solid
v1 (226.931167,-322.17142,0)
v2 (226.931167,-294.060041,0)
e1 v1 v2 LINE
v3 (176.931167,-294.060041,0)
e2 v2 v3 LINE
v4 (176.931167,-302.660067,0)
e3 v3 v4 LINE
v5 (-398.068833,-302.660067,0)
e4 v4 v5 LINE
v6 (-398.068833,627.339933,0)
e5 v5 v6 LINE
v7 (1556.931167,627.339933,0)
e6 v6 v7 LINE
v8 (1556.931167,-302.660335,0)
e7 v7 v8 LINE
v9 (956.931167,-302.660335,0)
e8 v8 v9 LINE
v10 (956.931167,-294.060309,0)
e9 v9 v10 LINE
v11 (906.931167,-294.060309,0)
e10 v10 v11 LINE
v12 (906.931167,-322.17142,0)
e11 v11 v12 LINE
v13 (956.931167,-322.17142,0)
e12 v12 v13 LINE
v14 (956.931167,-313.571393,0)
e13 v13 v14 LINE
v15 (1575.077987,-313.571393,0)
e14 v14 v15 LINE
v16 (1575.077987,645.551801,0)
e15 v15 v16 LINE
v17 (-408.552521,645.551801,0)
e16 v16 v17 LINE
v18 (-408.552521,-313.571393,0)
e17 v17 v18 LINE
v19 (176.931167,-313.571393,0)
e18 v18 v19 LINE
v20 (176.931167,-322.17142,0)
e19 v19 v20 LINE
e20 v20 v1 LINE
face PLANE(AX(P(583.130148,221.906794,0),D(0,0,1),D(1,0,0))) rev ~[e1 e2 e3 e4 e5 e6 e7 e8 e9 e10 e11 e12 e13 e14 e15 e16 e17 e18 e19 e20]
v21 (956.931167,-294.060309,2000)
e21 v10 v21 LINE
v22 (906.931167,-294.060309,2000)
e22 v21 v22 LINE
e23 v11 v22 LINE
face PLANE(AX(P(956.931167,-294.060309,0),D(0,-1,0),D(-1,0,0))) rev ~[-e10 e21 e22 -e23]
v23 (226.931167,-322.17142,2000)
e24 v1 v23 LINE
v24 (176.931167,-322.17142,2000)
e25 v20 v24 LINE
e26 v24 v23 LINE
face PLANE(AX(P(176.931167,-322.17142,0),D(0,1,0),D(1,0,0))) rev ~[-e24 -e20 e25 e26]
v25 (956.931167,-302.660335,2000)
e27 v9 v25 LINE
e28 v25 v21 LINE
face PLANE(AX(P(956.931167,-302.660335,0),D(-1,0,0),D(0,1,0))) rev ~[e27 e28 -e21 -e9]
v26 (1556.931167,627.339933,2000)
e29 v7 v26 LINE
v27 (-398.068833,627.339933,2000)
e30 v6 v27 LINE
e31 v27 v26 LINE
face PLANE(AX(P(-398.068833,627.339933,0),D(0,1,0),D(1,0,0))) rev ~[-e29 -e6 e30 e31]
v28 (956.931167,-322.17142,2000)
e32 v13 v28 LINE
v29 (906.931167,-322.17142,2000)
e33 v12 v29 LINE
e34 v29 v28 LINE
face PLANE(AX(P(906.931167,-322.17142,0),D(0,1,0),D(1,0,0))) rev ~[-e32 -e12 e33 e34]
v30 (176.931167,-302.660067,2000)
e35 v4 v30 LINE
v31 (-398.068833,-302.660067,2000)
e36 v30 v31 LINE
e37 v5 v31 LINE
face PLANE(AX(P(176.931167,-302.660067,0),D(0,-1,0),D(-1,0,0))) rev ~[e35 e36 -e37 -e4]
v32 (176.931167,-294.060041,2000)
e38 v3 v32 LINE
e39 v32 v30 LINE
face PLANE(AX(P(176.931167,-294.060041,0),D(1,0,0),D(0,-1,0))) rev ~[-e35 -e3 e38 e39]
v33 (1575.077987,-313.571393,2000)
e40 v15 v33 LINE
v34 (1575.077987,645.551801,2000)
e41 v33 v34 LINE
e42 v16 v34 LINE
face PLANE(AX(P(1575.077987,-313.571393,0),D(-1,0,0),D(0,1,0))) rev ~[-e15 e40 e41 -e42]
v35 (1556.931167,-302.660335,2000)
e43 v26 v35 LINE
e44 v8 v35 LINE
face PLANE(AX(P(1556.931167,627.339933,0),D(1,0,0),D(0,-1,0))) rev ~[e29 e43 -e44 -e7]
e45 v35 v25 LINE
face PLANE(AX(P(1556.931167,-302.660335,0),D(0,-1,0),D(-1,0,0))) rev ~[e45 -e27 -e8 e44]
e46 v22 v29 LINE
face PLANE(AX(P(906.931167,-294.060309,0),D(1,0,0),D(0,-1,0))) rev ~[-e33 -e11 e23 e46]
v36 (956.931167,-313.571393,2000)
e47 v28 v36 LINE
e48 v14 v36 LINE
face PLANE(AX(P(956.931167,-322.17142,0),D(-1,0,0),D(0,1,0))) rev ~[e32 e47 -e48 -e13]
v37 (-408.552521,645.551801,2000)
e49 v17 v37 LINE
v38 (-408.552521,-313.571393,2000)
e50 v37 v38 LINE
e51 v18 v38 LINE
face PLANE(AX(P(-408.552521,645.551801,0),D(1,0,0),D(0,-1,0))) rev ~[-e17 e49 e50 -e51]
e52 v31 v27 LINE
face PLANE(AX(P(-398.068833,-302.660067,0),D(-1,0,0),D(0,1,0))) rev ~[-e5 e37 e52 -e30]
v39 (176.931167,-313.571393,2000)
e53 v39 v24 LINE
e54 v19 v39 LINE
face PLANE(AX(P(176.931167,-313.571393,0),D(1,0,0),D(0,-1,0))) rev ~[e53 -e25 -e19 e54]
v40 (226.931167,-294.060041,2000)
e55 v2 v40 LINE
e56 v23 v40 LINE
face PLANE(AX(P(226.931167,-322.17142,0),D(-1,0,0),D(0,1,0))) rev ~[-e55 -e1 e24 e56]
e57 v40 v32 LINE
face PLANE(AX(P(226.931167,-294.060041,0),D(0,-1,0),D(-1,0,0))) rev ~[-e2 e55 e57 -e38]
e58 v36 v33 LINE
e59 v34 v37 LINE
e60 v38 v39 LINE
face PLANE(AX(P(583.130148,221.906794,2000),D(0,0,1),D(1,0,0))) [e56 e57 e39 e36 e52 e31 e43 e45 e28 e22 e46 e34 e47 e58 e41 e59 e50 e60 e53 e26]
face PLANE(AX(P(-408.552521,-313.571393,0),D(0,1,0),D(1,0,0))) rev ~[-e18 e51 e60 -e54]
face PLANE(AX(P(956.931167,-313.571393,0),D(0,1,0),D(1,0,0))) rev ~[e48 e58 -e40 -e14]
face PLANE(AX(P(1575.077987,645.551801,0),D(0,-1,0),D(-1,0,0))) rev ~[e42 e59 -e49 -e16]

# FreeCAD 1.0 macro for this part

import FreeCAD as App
import Part
import Sketcher

V = App.Vector

doc = App.newDocument("Part")
body = doc.addObject("PartDesign::Body", "Body")

sketch1 = body.newObject("Sketcher::SketchObject", "Sketch")
sketch1.AttachmentSupport = (doc.getObject("XY_Plane"), [""])
sketch1.MapMode = "FlatFace"
sketch1.addGeometry([
    Part.LineSegment(V(177, -303, 0), V(-398, -303, 0)),
    Part.LineSegment(V(-398, -303, 0), V(-398, 627, 0)),
    Part.LineSegment(V(-398, 627, 0), V(1557, 627, 0)),
    Part.LineSegment(V(1557, 627, 0), V(1557, -303, 0)),
    Part.LineSegment(V(1557, -303, 0), V(957, -303, 0)),
    Part.LineSegment(V(957, -303, 0), V(957, -294, 0)),
    Part.LineSegment(V(957, -294, 0), V(907, -294, 0)),
    Part.LineSegment(V(907, -294, 0), V(907, -322, 0)),
    Part.LineSegment(V(907, -322, 0), V(957, -322, 0)),
    Part.LineSegment(V(957, -322, 0), V(957, -314, 0)),
    Part.LineSegment(V(957, -314, 0), V(1575, -314, 0)),
    Part.LineSegment(V(1575, -314, 0), V(1575, 646, 0)),
    Part.LineSegment(V(1575, 646, 0), V(-409, 646, 0)),
    Part.LineSegment(V(-409, 646, 0), V(-409, -314, 0)),
    Part.LineSegment(V(-409, -314, 0), V(177, -314, 0)),
    Part.LineSegment(V(177, -314, 0), V(177, -322, 0)),
    Part.LineSegment(V(177, -322, 0), V(227, -322, 0)),
    Part.LineSegment(V(227, -322, 0), V(227, -294, 0)),
    Part.LineSegment(V(227, -294, 0), V(177, -294, 0)),
    Part.LineSegment(V(177, -294, 0), V(177, -303, 0)),
], False)
sketch1.addConstraint([
    Sketcher.Constraint("Coincident", 0, 2, 1, 1),
    Sketcher.Constraint("Coincident", 1, 2, 2, 1),
    Sketcher.Constraint("Coincident", 2, 2, 3, 1),
    Sketcher.Constraint("Coincident", 3, 2, 4, 1),
    Sketcher.Constraint("Coincident", 4, 2, 5, 1),
    Sketcher.Constraint("Coincident", 5, 2, 6, 1),
    Sketcher.Constraint("Coincident", 6, 2, 7, 1),
    Sketcher.Constraint("Coincident", 7, 2, 8, 1),
    Sketcher.Constraint("Coincident", 8, 2, 9, 1),
    Sketcher.Constraint("Coincident", 9, 2, 10, 1),
    Sketcher.Constraint("Coincident", 10, 2, 11, 1),
    Sketcher.Constraint("Coincident", 11, 2, 12, 1),
    Sketcher.Constraint("Coincident", 12, 2, 13, 1),
    Sketcher.Constraint("Coincident", 13, 2, 14, 1),
    Sketcher.Constraint("Coincident", 14, 2, 15, 1),
    Sketcher.Constraint("Coincident", 15, 2, 16, 1),
    Sketcher.Constraint("Coincident", 16, 2, 17, 1),
    Sketcher.Constraint("Coincident", 17, 2, 18, 1),
    Sketcher.Constraint("Coincident", 18, 2, 19, 1),
    Sketcher.Constraint("Coincident", 19, 2, 0, 1),
    Sketcher.Constraint("Horizontal", 0),
    Sketcher.Constraint("Vertical", 1),
    Sketcher.Constraint("Horizontal", 2),
    Sketcher.Constraint("Vertical", 3),
    Sketcher.Constraint("Horizontal", 4),
    Sketcher.Constraint("Vertical", 5),
    Sketcher.Constraint("Horizontal", 6),
    Sketcher.Constraint("Vertical", 7),
    Sketcher.Constraint("Horizontal", 8),
    Sketcher.Constraint("Vertical", 9),
    Sketcher.Constraint("Horizontal", 10),
    Sketcher.Constraint("Vertical", 11),
    Sketcher.Constraint("Horizontal", 12),
    Sketcher.Constraint("Vertical", 13),
    Sketcher.Constraint("Horizontal", 14),
    Sketcher.Constraint("Vertical", 15),
    Sketcher.Constraint("Horizontal", 16),
    Sketcher.Constraint("Vertical", 17),
    Sketcher.Constraint("Horizontal", 18),
    Sketcher.Constraint("Vertical", 19),
    Sketcher.Constraint("Horizontal", 10, 2, 13, 2),
    Sketcher.Constraint("Horizontal", 8, 2, 15, 2),
    Sketcher.Constraint("Vertical", 5, 2, 8, 2),
    Sketcher.Constraint("Vertical", 15, 2, 18, 2),
    Sketcher.Constraint("Equal", 8, 16),
    Sketcher.Constraint("Equal", 5, 9),
    Sketcher.Constraint("Equal", 15, 19),
    Sketcher.Constraint("DistanceX", 0, 2, 0, 1, 575.0),
    Sketcher.Constraint("DistanceX", 2, 1, 2, 2, 1955.0),
    Sketcher.Constraint("DistanceX", 4, 2, 4, 1, 600.0),
    Sketcher.Constraint("DistanceX", 6, 2, 6, 1, 50.0),
    Sketcher.Constraint("DistanceY", 1, 1, 1, 2, 930.0),
    Sketcher.Constraint("DistanceX", 10, 1, 10, 2, 618.14682),
    Sketcher.Constraint("DistanceX", 12, 2, 12, 1, 1983.630508),
    Sketcher.Constraint("DistanceY", 3, 2, 3, 1, 930.000268),
    Sketcher.Constraint("DistanceY", 7, 2, 7, 1, 28.111111),
    Sketcher.Constraint("DistanceY", -1, 1, 11, 2, 645.551801),
    Sketcher.Constraint("DistanceY", 5, 1, 5, 2, 8.600026),
    Sketcher.Constraint("DistanceY", 11, 1, 11, 2, 959.123194),
    Sketcher.Constraint("DistanceX", 12, 2, -1, 1, 408.552521),
])
pad1 = body.newObject("PartDesign::Pad", "Pad")
pad1.Profile = sketch1
pad1.Length = 2000

doc.recompute()
